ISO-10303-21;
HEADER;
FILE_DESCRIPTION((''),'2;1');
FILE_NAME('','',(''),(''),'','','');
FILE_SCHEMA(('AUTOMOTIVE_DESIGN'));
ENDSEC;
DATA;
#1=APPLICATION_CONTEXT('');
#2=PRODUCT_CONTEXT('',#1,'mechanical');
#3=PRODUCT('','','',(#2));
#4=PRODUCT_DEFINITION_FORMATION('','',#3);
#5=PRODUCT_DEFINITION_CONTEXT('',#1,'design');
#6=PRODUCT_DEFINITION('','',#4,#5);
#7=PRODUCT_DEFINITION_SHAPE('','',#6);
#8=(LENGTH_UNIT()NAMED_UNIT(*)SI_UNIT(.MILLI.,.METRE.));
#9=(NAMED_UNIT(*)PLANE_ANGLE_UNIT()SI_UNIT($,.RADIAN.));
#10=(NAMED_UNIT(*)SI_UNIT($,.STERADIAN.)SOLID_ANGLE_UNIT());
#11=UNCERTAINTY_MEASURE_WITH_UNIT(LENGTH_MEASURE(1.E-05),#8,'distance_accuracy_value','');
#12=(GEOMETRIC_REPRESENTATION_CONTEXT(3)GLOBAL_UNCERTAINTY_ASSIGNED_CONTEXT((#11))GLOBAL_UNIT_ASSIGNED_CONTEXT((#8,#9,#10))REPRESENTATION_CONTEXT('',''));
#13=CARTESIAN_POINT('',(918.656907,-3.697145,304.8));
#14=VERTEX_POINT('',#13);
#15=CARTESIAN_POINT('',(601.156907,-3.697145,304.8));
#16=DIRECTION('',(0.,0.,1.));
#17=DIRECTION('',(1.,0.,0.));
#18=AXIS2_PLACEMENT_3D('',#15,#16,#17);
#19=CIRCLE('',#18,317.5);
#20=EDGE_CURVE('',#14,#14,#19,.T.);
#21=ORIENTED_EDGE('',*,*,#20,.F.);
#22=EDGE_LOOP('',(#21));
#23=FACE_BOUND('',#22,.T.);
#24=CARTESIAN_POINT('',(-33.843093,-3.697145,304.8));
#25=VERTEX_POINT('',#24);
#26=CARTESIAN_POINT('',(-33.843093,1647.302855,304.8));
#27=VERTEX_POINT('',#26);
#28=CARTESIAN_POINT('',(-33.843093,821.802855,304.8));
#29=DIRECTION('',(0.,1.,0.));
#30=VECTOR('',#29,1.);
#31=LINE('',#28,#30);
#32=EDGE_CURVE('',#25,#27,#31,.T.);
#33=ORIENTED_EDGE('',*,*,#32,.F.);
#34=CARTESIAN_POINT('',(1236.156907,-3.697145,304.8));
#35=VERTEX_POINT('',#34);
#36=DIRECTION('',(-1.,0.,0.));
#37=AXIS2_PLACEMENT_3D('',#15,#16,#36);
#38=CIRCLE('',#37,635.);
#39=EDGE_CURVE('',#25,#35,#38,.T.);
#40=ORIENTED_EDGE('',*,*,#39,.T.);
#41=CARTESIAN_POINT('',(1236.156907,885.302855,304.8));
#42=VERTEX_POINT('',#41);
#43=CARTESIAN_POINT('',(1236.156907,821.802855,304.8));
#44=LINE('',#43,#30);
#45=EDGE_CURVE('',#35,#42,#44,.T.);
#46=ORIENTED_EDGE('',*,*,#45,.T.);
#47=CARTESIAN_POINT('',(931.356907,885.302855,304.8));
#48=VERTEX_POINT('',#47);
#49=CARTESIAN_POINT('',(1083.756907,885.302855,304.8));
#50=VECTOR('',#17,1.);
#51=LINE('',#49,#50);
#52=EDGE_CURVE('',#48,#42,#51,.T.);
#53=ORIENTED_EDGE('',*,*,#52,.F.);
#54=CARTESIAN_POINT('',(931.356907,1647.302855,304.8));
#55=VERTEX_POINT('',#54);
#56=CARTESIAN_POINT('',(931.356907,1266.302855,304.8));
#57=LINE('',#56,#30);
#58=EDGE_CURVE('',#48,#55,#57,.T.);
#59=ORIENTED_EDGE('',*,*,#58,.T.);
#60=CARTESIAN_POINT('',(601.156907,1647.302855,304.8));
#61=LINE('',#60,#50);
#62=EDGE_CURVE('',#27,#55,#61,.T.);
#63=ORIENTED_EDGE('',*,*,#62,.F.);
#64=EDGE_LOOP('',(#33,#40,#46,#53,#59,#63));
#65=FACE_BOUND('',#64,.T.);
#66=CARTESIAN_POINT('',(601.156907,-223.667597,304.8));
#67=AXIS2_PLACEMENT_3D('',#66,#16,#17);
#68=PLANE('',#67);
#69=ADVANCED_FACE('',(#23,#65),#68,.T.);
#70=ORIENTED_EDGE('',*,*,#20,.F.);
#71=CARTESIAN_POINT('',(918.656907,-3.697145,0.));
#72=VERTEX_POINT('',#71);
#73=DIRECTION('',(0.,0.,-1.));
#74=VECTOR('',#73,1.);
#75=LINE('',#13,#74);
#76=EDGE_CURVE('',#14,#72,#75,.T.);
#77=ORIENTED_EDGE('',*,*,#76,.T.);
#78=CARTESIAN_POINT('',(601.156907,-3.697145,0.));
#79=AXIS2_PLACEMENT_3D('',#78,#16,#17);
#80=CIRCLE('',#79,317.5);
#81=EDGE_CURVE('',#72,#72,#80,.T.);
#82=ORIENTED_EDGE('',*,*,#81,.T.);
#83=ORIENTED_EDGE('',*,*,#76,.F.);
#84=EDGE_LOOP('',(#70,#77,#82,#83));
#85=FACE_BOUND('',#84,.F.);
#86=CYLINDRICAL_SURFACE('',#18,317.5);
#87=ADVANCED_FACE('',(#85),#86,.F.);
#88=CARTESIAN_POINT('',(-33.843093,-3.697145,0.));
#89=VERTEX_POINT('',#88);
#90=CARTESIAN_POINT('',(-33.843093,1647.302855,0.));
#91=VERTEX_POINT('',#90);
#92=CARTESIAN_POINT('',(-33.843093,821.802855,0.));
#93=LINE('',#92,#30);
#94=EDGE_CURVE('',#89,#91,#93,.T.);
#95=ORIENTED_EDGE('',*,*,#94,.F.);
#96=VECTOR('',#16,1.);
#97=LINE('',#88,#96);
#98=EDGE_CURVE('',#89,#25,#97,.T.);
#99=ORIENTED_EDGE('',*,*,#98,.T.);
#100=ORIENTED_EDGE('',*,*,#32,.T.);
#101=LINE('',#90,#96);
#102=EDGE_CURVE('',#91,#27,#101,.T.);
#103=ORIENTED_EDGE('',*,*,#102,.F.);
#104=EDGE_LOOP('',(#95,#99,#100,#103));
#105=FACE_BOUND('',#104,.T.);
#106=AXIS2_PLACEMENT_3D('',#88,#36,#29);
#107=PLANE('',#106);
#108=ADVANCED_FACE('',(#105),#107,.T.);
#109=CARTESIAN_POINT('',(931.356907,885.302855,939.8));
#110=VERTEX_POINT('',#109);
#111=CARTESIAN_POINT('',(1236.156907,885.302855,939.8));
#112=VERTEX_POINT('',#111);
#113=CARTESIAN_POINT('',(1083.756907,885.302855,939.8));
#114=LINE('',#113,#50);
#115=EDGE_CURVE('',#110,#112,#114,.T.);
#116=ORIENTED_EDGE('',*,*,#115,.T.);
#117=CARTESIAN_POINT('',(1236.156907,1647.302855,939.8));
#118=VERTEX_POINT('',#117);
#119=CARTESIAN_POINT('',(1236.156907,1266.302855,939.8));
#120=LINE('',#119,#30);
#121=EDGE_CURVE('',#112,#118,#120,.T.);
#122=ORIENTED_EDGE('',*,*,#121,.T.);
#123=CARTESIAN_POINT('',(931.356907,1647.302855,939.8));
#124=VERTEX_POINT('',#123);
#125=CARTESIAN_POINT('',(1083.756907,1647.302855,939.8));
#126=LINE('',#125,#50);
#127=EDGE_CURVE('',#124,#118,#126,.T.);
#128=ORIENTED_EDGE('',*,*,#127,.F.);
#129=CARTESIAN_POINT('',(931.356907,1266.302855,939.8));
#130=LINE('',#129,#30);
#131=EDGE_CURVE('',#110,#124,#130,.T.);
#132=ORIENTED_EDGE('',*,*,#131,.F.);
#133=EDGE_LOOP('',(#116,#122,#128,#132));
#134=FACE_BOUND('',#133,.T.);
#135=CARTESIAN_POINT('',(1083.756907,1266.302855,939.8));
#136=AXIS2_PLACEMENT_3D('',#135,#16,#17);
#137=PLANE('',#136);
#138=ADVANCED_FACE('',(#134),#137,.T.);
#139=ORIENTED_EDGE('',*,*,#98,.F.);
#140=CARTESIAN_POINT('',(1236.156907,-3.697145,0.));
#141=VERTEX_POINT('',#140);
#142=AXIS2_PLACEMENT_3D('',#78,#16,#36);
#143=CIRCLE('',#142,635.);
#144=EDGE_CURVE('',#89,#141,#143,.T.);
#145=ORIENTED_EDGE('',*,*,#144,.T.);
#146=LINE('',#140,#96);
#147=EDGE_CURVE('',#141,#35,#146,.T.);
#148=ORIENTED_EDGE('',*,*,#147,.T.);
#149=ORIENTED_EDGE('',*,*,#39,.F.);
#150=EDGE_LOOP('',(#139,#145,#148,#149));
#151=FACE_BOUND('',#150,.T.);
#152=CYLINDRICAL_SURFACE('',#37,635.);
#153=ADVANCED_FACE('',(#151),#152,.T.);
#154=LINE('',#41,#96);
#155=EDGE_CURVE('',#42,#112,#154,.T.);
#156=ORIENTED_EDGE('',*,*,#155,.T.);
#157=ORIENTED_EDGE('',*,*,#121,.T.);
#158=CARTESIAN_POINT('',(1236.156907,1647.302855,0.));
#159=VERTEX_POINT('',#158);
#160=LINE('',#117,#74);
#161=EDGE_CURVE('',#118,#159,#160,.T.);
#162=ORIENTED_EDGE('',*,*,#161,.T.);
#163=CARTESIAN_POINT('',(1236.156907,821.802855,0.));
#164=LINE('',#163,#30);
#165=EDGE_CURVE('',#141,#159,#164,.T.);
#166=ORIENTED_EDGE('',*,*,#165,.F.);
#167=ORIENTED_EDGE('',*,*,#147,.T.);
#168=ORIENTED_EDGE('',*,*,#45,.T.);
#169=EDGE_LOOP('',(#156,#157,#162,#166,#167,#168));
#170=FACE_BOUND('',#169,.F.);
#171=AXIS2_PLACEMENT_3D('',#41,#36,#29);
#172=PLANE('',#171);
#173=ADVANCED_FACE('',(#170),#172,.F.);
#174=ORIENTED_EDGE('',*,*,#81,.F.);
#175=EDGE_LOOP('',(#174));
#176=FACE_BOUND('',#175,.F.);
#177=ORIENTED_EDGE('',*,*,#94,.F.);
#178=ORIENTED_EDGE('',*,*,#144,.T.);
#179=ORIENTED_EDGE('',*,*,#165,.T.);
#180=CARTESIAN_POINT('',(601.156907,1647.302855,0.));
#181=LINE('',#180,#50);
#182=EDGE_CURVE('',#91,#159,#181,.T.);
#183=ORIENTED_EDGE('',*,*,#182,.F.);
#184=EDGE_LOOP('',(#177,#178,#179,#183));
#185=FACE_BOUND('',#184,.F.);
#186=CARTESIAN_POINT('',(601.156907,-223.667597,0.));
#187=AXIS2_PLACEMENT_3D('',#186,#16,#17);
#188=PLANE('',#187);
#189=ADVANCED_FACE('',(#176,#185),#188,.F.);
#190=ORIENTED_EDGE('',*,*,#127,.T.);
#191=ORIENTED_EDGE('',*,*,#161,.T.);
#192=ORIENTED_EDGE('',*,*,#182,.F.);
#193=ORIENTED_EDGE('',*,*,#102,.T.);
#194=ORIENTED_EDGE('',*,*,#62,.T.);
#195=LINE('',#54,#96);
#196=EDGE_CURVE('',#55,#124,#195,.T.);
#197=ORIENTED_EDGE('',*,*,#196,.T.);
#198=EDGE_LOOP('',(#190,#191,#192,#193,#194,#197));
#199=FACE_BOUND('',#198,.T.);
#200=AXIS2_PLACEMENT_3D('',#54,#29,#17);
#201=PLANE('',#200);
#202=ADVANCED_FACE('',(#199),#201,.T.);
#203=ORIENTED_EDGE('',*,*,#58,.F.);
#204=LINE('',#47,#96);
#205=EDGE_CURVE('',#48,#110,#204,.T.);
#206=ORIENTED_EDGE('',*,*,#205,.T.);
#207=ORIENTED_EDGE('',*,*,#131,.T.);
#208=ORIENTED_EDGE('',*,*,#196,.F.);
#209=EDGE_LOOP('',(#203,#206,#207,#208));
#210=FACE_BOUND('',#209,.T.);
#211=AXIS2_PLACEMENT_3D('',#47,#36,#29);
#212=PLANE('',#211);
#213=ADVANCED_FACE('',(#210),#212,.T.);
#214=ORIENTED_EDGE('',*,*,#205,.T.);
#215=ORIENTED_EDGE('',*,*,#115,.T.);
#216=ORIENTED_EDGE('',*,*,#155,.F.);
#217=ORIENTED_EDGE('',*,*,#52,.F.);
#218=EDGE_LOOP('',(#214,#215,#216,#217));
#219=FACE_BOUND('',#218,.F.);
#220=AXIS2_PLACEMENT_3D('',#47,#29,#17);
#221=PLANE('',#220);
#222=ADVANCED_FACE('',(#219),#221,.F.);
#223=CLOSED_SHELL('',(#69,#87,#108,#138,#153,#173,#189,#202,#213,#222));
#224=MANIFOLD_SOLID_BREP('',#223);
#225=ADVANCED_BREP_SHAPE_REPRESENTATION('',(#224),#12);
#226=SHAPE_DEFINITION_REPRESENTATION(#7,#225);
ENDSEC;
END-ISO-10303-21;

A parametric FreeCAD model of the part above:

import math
import FreeCAD as App
import Part
import Sketcher
from FreeCAD import Vector
Q = App.Units.Quantity

doc = App.newDocument("Part")
body = doc.addObject("PartDesign::Body", "Body")

# Sketch on XY plane
sketch1 = doc.addObject("Sketcher::SketchObject", "Sketch")
body.addObject(sketch1)
sketch1.AttachmentSupport = (doc.XY_Plane, [""])
sketch1.MapMode = "FlatFace"
sketch1.addGeometry(Part.LineSegment(Vector(-34, 1647, 0), Vector(-34, -4, 0)), False)
sketch1.addGeometry(Part.LineSegment(Vector(-34, -4, 0), Vector(1236, -4, 0)), False)
sketch1.addGeometry(Part.LineSegment(Vector(1236, -4, 0), Vector(1236, 1647, 0)), False)
sketch1.addGeometry(Part.LineSegment(Vector(1236, 1647, 0), Vector(-34, 1647, 0)), False)
sketch1.addConstraint(Sketcher.Constraint("Coincident", 0, 2, 1, 1))
sketch1.addConstraint(Sketcher.Constraint("Coincident", 1, 2, 2, 1))
sketch1.addConstraint(Sketcher.Constraint("Coincident", 2, 2, 3, 1))
sketch1.addConstraint(Sketcher.Constraint("Coincident", 3, 2, 0, 1))
sketch1.addConstraint(Sketcher.Constraint("Vertical", 0))
sketch1.addConstraint(Sketcher.Constraint("Horizontal", 1))
sketch1.addConstraint(Sketcher.Constraint("Vertical", 2))
sketch1.addConstraint(Sketcher.Constraint("Horizontal", 3))
sketch1.addConstraint(Sketcher.Constraint("DistanceX", 1, 1, 1, 2, Q("50 in")))
sketch1.addConstraint(Sketcher.Constraint("DistanceY", 0, 2, 0, 1, Q("65 in")))
sketch1.addConstraint(Sketcher.Constraint("DistanceX", 0, 2, -1, 1, 33.843093))
sketch1.addConstraint(Sketcher.Constraint("DistanceY", 0, 2, -1, 1, 3.697145))
pad1 = doc.addObject("PartDesign::Pad", "Pad")
body.addObject(pad1)
pad1.Profile = sketch1
pad1.Length = Q("12 in")

# Sketch on XY plane
sketch2 = doc.addObject("Sketcher::SketchObject", "Sketch001")
body.addObject(sketch2)
sketch2.AttachmentSupport = (doc.XY_Plane, [""])
sketch2.MapMode = "FlatFace"
sketch2.AttachmentOffset = App.Placement(Vector(0, 0, 12 * 25.4), App.Rotation())
sketch2.addGeometry(Part.LineSegment(Vector(931, 1647, 0), Vector(931, 885, 0)), False)
sketch2.addGeometry(Part.LineSegment(Vector(931, 885, 0), Vector(1236, 885, 0)), False)
sketch2.addGeometry(Part.LineSegment(Vector(1236, 885, 0), Vector(1236, 1647, 0)), False)
sketch2.addGeometry(Part.LineSegment(Vector(1236, 1647, 0), Vector(931, 1647, 0)), False)
sketch2.addConstraint(Sketcher.Constraint("Coincident", 0, 2, 1, 1))
sketch2.addConstraint(Sketcher.Constraint("Coincident", 1, 2, 2, 1))
sketch2.addConstraint(Sketcher.Constraint("Coincident", 2, 2, 3, 1))
sketch2.addConstraint(Sketcher.Constraint("Coincident", 3, 2, 0, 1))
sketch2.addConstraint(Sketcher.Constraint("Vertical", 0))
sketch2.addConstraint(Sketcher.Constraint("Horizontal", 1))
sketch2.addConstraint(Sketcher.Constraint("Vertical", 2))
sketch2.addConstraint(Sketcher.Constraint("Horizontal", 3))
sketch2.addConstraint(Sketcher.Constraint("DistanceX", 1, 1, 1, 2, Q("12 in")))
sketch2.addConstraint(Sketcher.Constraint("DistanceY", 0, 2, 0, 1, Q("30 in")))
sketch2.addConstraint(Sketcher.Constraint("DistanceX", -1, 1, 0, 2, 931.356907))
sketch2.addConstraint(Sketcher.Constraint("DistanceY", -1, 1, 0, 2, 885.302855))
pad2 = doc.addObject("PartDesign::Pad", "Pad001")
body.addObject(pad2)
pad2.Profile = sketch2
pad2.Length = Q("25 in")

# Sketch on XY plane
sketch3 = doc.addObject("Sketcher::SketchObject", "Sketch002")
body.addObject(sketch3)
sketch3.AttachmentSupport = (doc.XY_Plane, [""])
sketch3.MapMode = "FlatFace"
sketch3.AttachmentOffset = App.Placement(Vector(0, 0, 12 * 25.4), App.Rotation())
sketch3.addGeometry(Part.ArcOfCircle(Part.Circle(Vector(601, -4, 0), Vector(0, 0, 1), 635), math.radians(180), math.radians(360)), False)
sketch3.addGeometry(Part.LineSegment(Vector(1236, -4, 0), Vector(-34, -4, 0)), False)
sketch3.addConstraint(Sketcher.Constraint("Coincident", 0, 1, 1, 2))
sketch3.addConstraint(Sketcher.Constraint("Coincident", 1, 1, 0, 2))
sketch3.addConstraint(Sketcher.Constraint("Horizontal", 1))
sketch3.addConstraint(Sketcher.Constraint("Radius", 0, Q("25 in")))
sketch3.addConstraint(Sketcher.Constraint("DistanceX", -1, 1, 0, 3, 601.156907))
sketch3.addConstraint(Sketcher.Constraint("DistanceY", 0, 3, -1, 1, 3.697145))
sketch3.addConstraint(Sketcher.Constraint("DistanceY", 1, 1, -1, 1, 3.697145))
pad3 = doc.addObject("PartDesign::Pad", "Pad002")
body.addObject(pad3)
pad3.Profile = sketch3
pad3.Length = Q("12 in")
pad3.Reversed = True

# Sketch on XY plane
sketch4 = doc.addObject("Sketcher::SketchObject", "Sketch003")
body.addObject(sketch4)
sketch4.AttachmentSupport = (doc.XY_Plane, [""])
sketch4.MapMode = "FlatFace"
sketch4.AttachmentOffset = App.Placement(Vector(0, 0, 12 * 25.4), App.Rotation())
sketch4.addGeometry(Part.Circle(Vector(601, -4, 0), Vector(0, 0, 1), 318), False)
sketch4.addConstraint(Sketcher.Constraint("Diameter", 0, Q("25 in")))
sketch4.addConstraint(Sketcher.Constraint("DistanceX", -1, 1, 0, 3, 601.156907))
sketch4.addConstraint(Sketcher.Constraint("DistanceY", 0, 3, -1, 1, 3.697145))
pocket1 = doc.addObject("PartDesign::Pocket", "Pocket")
body.addObject(pocket1)
pocket1.Profile = sketch4
pocket1.Length = Q("12 in")

doc.recompute()
